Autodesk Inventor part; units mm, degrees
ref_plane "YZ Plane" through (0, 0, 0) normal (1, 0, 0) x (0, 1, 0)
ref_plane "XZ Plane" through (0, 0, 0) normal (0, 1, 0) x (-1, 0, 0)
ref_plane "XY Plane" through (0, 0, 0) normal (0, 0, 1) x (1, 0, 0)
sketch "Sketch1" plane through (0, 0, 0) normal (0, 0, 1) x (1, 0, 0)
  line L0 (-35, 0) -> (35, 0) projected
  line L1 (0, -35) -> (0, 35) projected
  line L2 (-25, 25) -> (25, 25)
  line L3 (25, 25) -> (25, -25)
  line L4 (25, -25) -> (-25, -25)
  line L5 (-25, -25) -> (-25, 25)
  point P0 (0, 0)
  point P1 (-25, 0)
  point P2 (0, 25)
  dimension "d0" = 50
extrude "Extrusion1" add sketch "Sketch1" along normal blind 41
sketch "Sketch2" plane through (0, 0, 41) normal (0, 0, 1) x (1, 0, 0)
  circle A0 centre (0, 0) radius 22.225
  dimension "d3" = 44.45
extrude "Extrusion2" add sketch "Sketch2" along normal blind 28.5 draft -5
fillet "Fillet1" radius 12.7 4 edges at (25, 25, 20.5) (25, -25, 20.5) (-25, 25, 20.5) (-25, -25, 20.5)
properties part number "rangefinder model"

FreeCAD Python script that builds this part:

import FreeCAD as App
import Part
import Sketcher


def edges_at(feature, points):
    """Names of the edges that pass closest to the given points."""
    edges = feature.Shape.Edges
    near = lambda p: min(range(len(edges)), key=lambda i: edges[i].distToShape(Part.Vertex(*p))[0])
    return sorted({f"Edge{near(p) + 1}" for p in points})

doc = App.newDocument("Part")
body = doc.addObject("PartDesign::Body", "Body")

# Sketch on XY plane
sketch1 = body.newObject("Sketcher::SketchObject", "Sketch")
sketch1.AttachmentSupport = (doc.getObject("XY_Plane"), [""])
sketch1.MapMode = "FlatFace"
sketch1.addGeometry([
    Part.LineSegment(App.Vector(-25, 25, 0), App.Vector(-25, -25, 0)),
    Part.LineSegment(App.Vector(-25, -25, 0), App.Vector(25, -25, 0)),
    Part.LineSegment(App.Vector(25, -25, 0), App.Vector(25, 25, 0)),
    Part.LineSegment(App.Vector(25, 25, 0), App.Vector(-25, 25, 0)),
], False)
sketch1.addConstraint([
    Sketcher.Constraint("Coincident", 0, 2, 1, 1),
    Sketcher.Constraint("Coincident", 1, 2, 2, 1),
    Sketcher.Constraint("Coincident", 2, 2, 3, 1),
    Sketcher.Constraint("Coincident", 3, 2, 0, 1),
    Sketcher.Constraint("Vertical", 0),
    Sketcher.Constraint("Horizontal", 1),
    Sketcher.Constraint("Vertical", 2),
    Sketcher.Constraint("Horizontal", 3),
    Sketcher.Constraint("Symmetric", 0, 2, 2, 2, -1, 1),
    Sketcher.Constraint("Equal", 3, 0),
    Sketcher.Constraint("DistanceX", 1, 1, 1, 2, 50.0),
])
pad1 = body.newObject("PartDesign::Pad", "Pad")
pad1.Profile = sketch1
pad1.Length = 41

# Sketch on XY plane
sketch2 = body.newObject("Sketcher::SketchObject", "Sketch001")
sketch2.AttachmentSupport = (doc.getObject("XY_Plane"), [""])
sketch2.MapMode = "FlatFace"
sketch2.AttachmentOffset = App.Placement(App.Vector(0, 0, 41), App.Rotation())
sketch2.addGeometry(Part.Circle(App.Vector(0, 0, 0), App.Vector(0, 0, 1), 22), False)
sketch2.addConstraint([
    Sketcher.Constraint("Coincident", 0, 3, -1, 1),
    Sketcher.Constraint("Diameter", 0, 44.45),
])
pad2 = body.newObject("PartDesign::Pad", "Pad001")
pad2.Profile = sketch2
pad2.Length = 28.5
pad2.TaperAngle = -5
doc.recompute()

fillet = body.newObject("PartDesign::Fillet", "Fillet")
fillet.Base = (pad2, edges_at(pad2, [
    (25, 25, 20.5),
    (25, -25, 20.5),
    (-25, 25, 20.5),
    (-25, -25, 20.5),
]))
fillet.Radius = 12.7

doc.recompute()
